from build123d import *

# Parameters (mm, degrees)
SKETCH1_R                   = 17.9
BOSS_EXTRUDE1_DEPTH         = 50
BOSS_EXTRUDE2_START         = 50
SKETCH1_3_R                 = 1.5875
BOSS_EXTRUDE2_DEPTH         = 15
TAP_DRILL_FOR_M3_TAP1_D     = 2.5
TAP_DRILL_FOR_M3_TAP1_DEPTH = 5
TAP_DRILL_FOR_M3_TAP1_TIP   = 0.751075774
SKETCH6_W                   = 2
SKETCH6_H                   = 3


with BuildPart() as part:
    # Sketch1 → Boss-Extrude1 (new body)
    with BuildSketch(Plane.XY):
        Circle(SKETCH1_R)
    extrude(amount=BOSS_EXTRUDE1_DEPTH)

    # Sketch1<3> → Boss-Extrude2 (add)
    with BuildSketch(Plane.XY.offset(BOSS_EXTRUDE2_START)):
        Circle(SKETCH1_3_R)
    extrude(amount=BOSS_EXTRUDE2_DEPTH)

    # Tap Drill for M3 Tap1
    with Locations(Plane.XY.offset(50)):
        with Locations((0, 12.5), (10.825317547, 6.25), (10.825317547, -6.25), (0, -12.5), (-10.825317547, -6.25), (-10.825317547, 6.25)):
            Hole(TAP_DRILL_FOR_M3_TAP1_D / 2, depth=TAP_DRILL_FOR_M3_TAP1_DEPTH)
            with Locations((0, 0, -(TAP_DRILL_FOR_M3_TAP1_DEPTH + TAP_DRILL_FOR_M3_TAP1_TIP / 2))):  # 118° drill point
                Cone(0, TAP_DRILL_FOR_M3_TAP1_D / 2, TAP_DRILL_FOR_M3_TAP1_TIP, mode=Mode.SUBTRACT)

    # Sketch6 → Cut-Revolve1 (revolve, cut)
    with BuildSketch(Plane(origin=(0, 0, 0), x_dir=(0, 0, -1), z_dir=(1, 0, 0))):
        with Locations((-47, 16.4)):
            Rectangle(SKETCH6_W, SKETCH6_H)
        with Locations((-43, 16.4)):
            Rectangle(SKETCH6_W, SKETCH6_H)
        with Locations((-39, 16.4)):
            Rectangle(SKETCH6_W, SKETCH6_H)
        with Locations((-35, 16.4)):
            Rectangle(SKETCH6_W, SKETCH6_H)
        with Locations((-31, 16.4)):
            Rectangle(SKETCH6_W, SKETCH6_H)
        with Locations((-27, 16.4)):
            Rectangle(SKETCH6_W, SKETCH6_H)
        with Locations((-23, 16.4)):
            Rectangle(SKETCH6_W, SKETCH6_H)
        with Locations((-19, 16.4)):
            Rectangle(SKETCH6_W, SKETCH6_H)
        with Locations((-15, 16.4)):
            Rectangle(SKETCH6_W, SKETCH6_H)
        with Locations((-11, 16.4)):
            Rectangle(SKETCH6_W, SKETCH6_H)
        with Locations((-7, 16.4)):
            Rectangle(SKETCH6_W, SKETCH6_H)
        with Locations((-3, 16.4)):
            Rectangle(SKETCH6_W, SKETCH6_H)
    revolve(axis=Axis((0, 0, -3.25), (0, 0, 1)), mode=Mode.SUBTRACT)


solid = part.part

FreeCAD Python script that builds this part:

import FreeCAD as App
import Part
import Sketcher

doc = App.newDocument("Part")
body = doc.addObject("PartDesign::Body", "Body")

# Sketch on XY plane
sketch1 = body.newObject("Sketcher::SketchObject", "Sketch")
sketch1.AttachmentSupport = (doc.getObject("XY_Plane"), [""])
sketch1.MapMode = "FlatFace"
sketch1.addGeometry(Part.Circle(App.Vector(0, 0, 0), App.Vector(0, 0, 1), 17.9), False)
sketch1.addConstraint(Sketcher.Constraint("Coincident", 0, 3, -1, 1))
sketch1.addConstraint(Sketcher.Constraint("Diameter", 0, 35.8))
pad1 = body.newObject("PartDesign::Pad", "Pad")
pad1.Profile = sketch1
pad1.Length = 50

# Sketch on XY plane
sketch2 = body.newObject("Sketcher::SketchObject", "Sketch001")
sketch2.AttachmentSupport = (doc.getObject("XY_Plane"), [""])
sketch2.MapMode = "FlatFace"
sketch2.AttachmentOffset = App.Placement(App.Vector(0, 0, 50), App.Rotation())
sketch2.addGeometry(Part.Circle(App.Vector(0, 0, 0), App.Vector(0, 0, 1), 1.5875), False)
sketch2.addConstraint(Sketcher.Constraint("Coincident", 0, 3, -1, 1))
sketch2.addConstraint(Sketcher.Constraint("Diameter", 0, 3.175))
pad2 = body.newObject("PartDesign::Pad", "Pad001")
pad2.Profile = sketch2
pad2.Length = 15

# Sketch on XY plane
sketch3 = body.newObject("Sketcher::SketchObject", "Sketch002")
sketch3.AttachmentSupport = (doc.getObject("XY_Plane"), [""])
sketch3.MapMode = "FlatFace"
sketch3.AttachmentOffset = App.Placement(App.Vector(0, 0, 50), App.Rotation())
sketch3.addGeometry(Part.Circle(App.Vector(0, 12.5, 0), App.Vector(0, 0, 1), 1.25), False)
sketch3.addGeometry(Part.Circle(App.Vector(10.825318, 6.25, 0), App.Vector(0, 0, 1), 1.25), False)
sketch3.addGeometry(Part.Circle(App.Vector(10.825318, -6.25, 0), App.Vector(0, 0, 1), 1.25), False)
sketch3.addGeometry(Part.Circle(App.Vector(0, -12.5, 0), App.Vector(0, 0, 1), 1.25), False)
sketch3.addGeometry(Part.Circle(App.Vector(-10.825318, -6.25, 0), App.Vector(0, 0, 1), 1.25), False)
sketch3.addGeometry(Part.Circle(App.Vector(-10.825318, 6.25, 0), App.Vector(0, 0, 1), 1.25), False)
sketch3.addConstraint(Sketcher.Constraint("Equal", 0, 1))
sketch3.addConstraint(Sketcher.Constraint("Equal", 1, 2))
sketch3.addConstraint(Sketcher.Constraint("Equal", 2, 3))
sketch3.addConstraint(Sketcher.Constraint("Equal", 3, 4))
sketch3.addConstraint(Sketcher.Constraint("Equal", 4, 5))
sketch3.addConstraint(Sketcher.Constraint("Symmetric", 0, 3, 3, 3, -1, 1))
sketch3.addConstraint(Sketcher.Constraint("Symmetric", 1, 3, 4, 3, -1, 1))
sketch3.addConstraint(Sketcher.Constraint("Symmetric", 2, 3, 5, 3, -1, 1))
sketch3.addConstraint(Sketcher.Constraint("Symmetric", 2, 3, 4, 3, -2))
sketch3.addConstraint(Sketcher.Constraint("PointOnObject", 0, 3, -2))
sketch3.addConstraint(Sketcher.Constraint("Diameter", 0, 2.5))
sketch3.addConstraint(Sketcher.Constraint("DistanceY", 3, 3, 0, 3, 25.0))
sketch3.addConstraint(Sketcher.Constraint("DistanceY", 2, 3, 1, 3, 12.5))
sketch3.addConstraint(Sketcher.Constraint("DistanceX", -1, 1, 1, 3, 10.825318))
doc.recompute()
hole = body.newObject("PartDesign::Hole", "Hole")
hole.Profile = sketch3
hole.ThreadType = "None"
hole.Diameter = 2.5
hole.DepthType = "Dimension"
hole.Depth = 5
hole.DrillPoint = "Angled"
hole.DrillPointAngle = 118

# Sketch on YZ plane
sketch4 = body.newObject("Sketcher::SketchObject", "Sketch003")
sketch4.AttachmentSupport = (doc.getObject("YZ_Plane"), [""])
sketch4.MapMode = "FlatFace"
sketch4.addGeometry(Part.LineSegment(App.Vector(17.9, 48, 0), App.Vector(14.9, 48, 0)), False)
sketch4.addGeometry(Part.LineSegment(App.Vector(14.9, 48, 0), App.Vector(14.9, 46, 0)), False)
sketch4.addGeometry(Part.LineSegment(App.Vector(14.9, 46, 0), App.Vector(17.9, 46, 0)), False)
sketch4.addGeometry(Part.LineSegment(App.Vector(17.9, 46, 0), App.Vector(17.9, 48, 0)), False)
sketch4.addGeometry(Part.LineSegment(App.Vector(17.9, 44, 0), App.Vector(14.9, 44, 0)), False)
sketch4.addGeometry(Part.LineSegment(App.Vector(14.9, 44, 0), App.Vector(14.9, 42, 0)), False)
sketch4.addGeometry(Part.LineSegment(App.Vector(14.9, 42, 0), App.Vector(17.9, 42, 0)), False)
sketch4.addGeometry(Part.LineSegment(App.Vector(17.9, 42, 0), App.Vector(17.9, 44, 0)), False)
sketch4.addGeometry(Part.LineSegment(App.Vector(17.9, 40, 0), App.Vector(14.9, 40, 0)), False)
sketch4.addGeometry(Part.LineSegment(App.Vector(14.9, 40, 0), App.Vector(14.9, 38, 0)), False)
sketch4.addGeometry(Part.LineSegment(App.Vector(14.9, 38, 0), App.Vector(17.9, 38, 0)), False)
sketch4.addGeometry(Part.LineSegment(App.Vector(17.9, 38, 0), App.Vector(17.9, 40, 0)), False)
sketch4.addGeometry(Part.LineSegment(App.Vector(17.9, 36, 0), App.Vector(14.9, 36, 0)), False)
sketch4.addGeometry(Part.LineSegment(App.Vector(14.9, 36, 0), App.Vector(14.9, 34, 0)), False)
sketch4.addGeometry(Part.LineSegment(App.Vector(14.9, 34, 0), App.Vector(17.9, 34, 0)), False)
sketch4.addGeometry(Part.LineSegment(App.Vector(17.9, 34, 0), App.Vector(17.9, 36, 0)), False)
sketch4.addGeometry(Part.LineSegment(App.Vector(17.9, 32, 0), App.Vector(14.9, 32, 0)), False)
sketch4.addGeometry(Part.LineSegment(App.Vector(14.9, 32, 0), App.Vector(14.9, 30, 0)), False)
sketch4.addGeometry(Part.LineSegment(App.Vector(14.9, 30, 0), App.Vector(17.9, 30, 0)), False)
sketch4.addGeometry(Part.LineSegment(App.Vector(17.9, 30, 0), App.Vector(17.9, 32, 0)), False)
sketch4.addGeometry(Part.LineSegment(App.Vector(17.9, 28, 0), App.Vector(14.9, 28, 0)), False)
sketch4.addGeometry(Part.LineSegment(App.Vector(14.9, 28, 0), App.Vector(14.9, 26, 0)), False)
sketch4.addGeometry(Part.LineSegment(App.Vector(14.9, 26, 0), App.Vector(17.9, 26, 0)), False)
sketch4.addGeometry(Part.LineSegment(App.Vector(17.9, 26, 0), App.Vector(17.9, 28, 0)), False)
sketch4.addGeometry(Part.LineSegment(App.Vector(17.9, 24, 0), App.Vector(14.9, 24, 0)), False)
sketch4.addGeometry(Part.LineSegment(App.Vector(14.9, 24, 0), App.Vector(14.9, 22, 0)), False)
sketch4.addGeometry(Part.LineSegment(App.Vector(14.9, 22, 0), App.Vector(17.9, 22, 0)), False)
sketch4.addGeometry(Part.LineSegment(App.Vector(17.9, 22, 0), App.Vector(17.9, 24, 0)), False)
sketch4.addGeometry(Part.LineSegment(App.Vector(17.9, 20, 0), App.Vector(14.9, 20, 0)), False)
sketch4.addGeometry(Part.LineSegment(App.Vector(14.9, 20, 0), App.Vector(14.9, 18, 0)), False)
sketch4.addGeometry(Part.LineSegment(App.Vector(14.9, 18, 0), App.Vector(17.9, 18, 0)), False)
sketch4.addGeometry(Part.LineSegment(App.Vector(17.9, 18, 0), App.Vector(17.9, 20, 0)), False)
sketch4.addGeometry(Part.LineSegment(App.Vector(17.9, 16, 0), App.Vector(14.9, 16, 0)), False)
sketch4.addGeometry(Part.LineSegment(App.Vector(14.9, 16, 0), App.Vector(14.9, 14, 0)), False)
sketch4.addGeometry(Part.LineSegment(App.Vector(14.9, 14, 0), App.Vector(17.9, 14, 0)), False)
sketch4.addGeometry(Part.LineSegment(App.Vector(17.9, 14, 0), App.Vector(17.9, 16, 0)), False)
sketch4.addGeometry(Part.LineSegment(App.Vector(17.9, 12, 0), App.Vector(14.9, 12, 0)), False)
sketch4.addGeometry(Part.LineSegment(App.Vector(14.9, 12, 0), App.Vector(14.9, 10, 0)), False)
sketch4.addGeometry(Part.LineSegment(App.Vector(14.9, 10, 0), App.Vector(17.9, 10, 0)), False)
sketch4.addGeometry(Part.LineSegment(App.Vector(17.9, 10, 0), App.Vector(17.9, 12, 0)), False)
sketch4.addGeometry(Part.LineSegment(App.Vector(17.9, 8, 0), App.Vector(14.9, 8, 0)), False)
sketch4.addGeometry(Part.LineSegment(App.Vector(14.9, 8, 0), App.Vector(14.9, 6, 0)), False)
sketch4.addGeometry(Part.LineSegment(App.Vector(14.9, 6, 0), App.Vector(17.9, 6, 0)), False)
sketch4.addGeometry(Part.LineSegment(App.Vector(17.9, 6, 0), App.Vector(17.9, 8, 0)), False)
sketch4.addGeometry(Part.LineSegment(App.Vector(17.9, 4, 0), App.Vector(14.9, 4, 0)), False)
sketch4.addGeometry(Part.LineSegment(App.Vector(14.9, 4, 0), App.Vector(14.9, 2, 0)), False)
sketch4.addGeometry(Part.LineSegment(App.Vector(14.9, 2, 0), App.Vector(17.9, 2, 0)), False)
sketch4.addGeometry(Part.LineSegment(App.Vector(17.9, 2, 0), App.Vector(17.9, 4, 0)), False)
sketch4.addConstraint(Sketcher.Constraint("Coincident", 0, 2, 1, 1))
sketch4.addConstraint(Sketcher.Constraint("Coincident", 1, 2, 2, 1))
sketch4.addConstraint(Sketcher.Constraint("Coincident", 2, 2, 3, 1))
sketch4.addConstraint(Sketcher.Constraint("Coincident", 3, 2, 0, 1))
sketch4.addConstraint(Sketcher.Constraint("Coincident", 4, 2, 5, 1))
sketch4.addConstraint(Sketcher.Constraint("Coincident", 5, 2, 6, 1))
sketch4.addConstraint(Sketcher.Constraint("Coincident", 6, 2, 7, 1))
sketch4.addConstraint(Sketcher.Constraint("Coincident", 7, 2, 4, 1))
sketch4.addConstraint(Sketcher.Constraint("Coincident", 8, 2, 9, 1))
sketch4.addConstraint(Sketcher.Constraint("Coincident", 9, 2, 10, 1))
sketch4.addConstraint(Sketcher.Constraint("Coincident", 10, 2, 11, 1))
sketch4.addConstraint(Sketcher.Constraint("Coincident", 11, 2, 8, 1))
sketch4.addConstraint(Sketcher.Constraint("Coincident", 12, 2, 13, 1))
sketch4.addConstraint(Sketcher.Constraint("Coincident", 13, 2, 14, 1))
sketch4.addConstraint(Sketcher.Constraint("Coincident", 14, 2, 15, 1))
sketch4.addConstraint(Sketcher.Constraint("Coincident", 15, 2, 12, 1))
sketch4.addConstraint(Sketcher.Constraint("Coincident", 16, 2, 17, 1))
sketch4.addConstraint(Sketcher.Constraint("Coincident", 17, 2, 18, 1))
sketch4.addConstraint(Sketcher.Constraint("Coincident", 18, 2, 19, 1))
sketch4.addConstraint(Sketcher.Constraint("Coincident", 19, 2, 16, 1))
sketch4.addConstraint(Sketcher.Constraint("Coincident", 20, 2, 21, 1))
sketch4.addConstraint(Sketcher.Constraint("Coincident", 21, 2, 22, 1))
sketch4.addConstraint(Sketcher.Constraint("Coincident", 22, 2, 23, 1))
sketch4.addConstraint(Sketcher.Constraint("Coincident", 23, 2, 20, 1))
sketch4.addConstraint(Sketcher.Constraint("Coincident", 24, 2, 25, 1))
sketch4.addConstraint(Sketcher.Constraint("Coincident", 25, 2, 26, 1))
sketch4.addConstraint(Sketcher.Constraint("Coincident", 26, 2, 27, 1))
sketch4.addConstraint(Sketcher.Constraint("Coincident", 27, 2, 24, 1))
sketch4.addConstraint(Sketcher.Constraint("Coincident", 28, 2, 29, 1))
sketch4.addConstraint(Sketcher.Constraint("Coincident", 29, 2, 30, 1))
sketch4.addConstraint(Sketcher.Constraint("Coincident", 30, 2, 31, 1))
sketch4.addConstraint(Sketcher.Constraint("Coincident", 31, 2, 28, 1))
sketch4.addConstraint(Sketcher.Constraint("Coincident", 32, 2, 33, 1))
sketch4.addConstraint(Sketcher.Constraint("Coincident", 33, 2, 34, 1))
sketch4.addConstraint(Sketcher.Constraint("Coincident", 34, 2, 35, 1))
sketch4.addConstraint(Sketcher.Constraint("Coincident", 35, 2, 32, 1))
sketch4.addConstraint(Sketcher.Constraint("Coincident", 36, 2, 37, 1))
sketch4.addConstraint(Sketcher.Constraint("Coincident", 37, 2, 38, 1))
sketch4.addConstraint(Sketcher.Constraint("Coincident", 38, 2, 39, 1))
sketch4.addConstraint(Sketcher.Constraint("Coincident", 39, 2, 36, 1))
sketch4.addConstraint(Sketcher.Constraint("Coincident", 40, 2, 41, 1))
sketch4.addConstraint(Sketcher.Constraint("Coincident", 41, 2, 42, 1))
sketch4.addConstraint(Sketcher.Constraint("Coincident", 42, 2, 43, 1))
sketch4.addConstraint(Sketcher.Constraint("Coincident", 43, 2, 40, 1))
sketch4.addConstraint(Sketcher.Constraint("Coincident", 44, 2, 45, 1))
sketch4.addConstraint(Sketcher.Constraint("Coincident", 45, 2, 46, 1))
sketch4.addConstraint(Sketcher.Constraint("Coincident", 46, 2, 47, 1))
sketch4.addConstraint(Sketcher.Constraint("Coincident", 47, 2, 44, 1))
sketch4.addConstraint(Sketcher.Constraint("Horizontal", 0))
sketch4.addConstraint(Sketcher.Constraint("Vertical", 1))
sketch4.addConstraint(Sketcher.Constraint("Horizontal", 2))
sketch4.addConstraint(Sketcher.Constraint("Vertical", 3))
sketch4.addConstraint(Sketcher.Constraint("Horizontal", 4))
sketch4.addConstraint(Sketcher.Constraint("Vertical", 5))
sketch4.addConstraint(Sketcher.Constraint("Horizontal", 6))
sketch4.addConstraint(Sketcher.Constraint("Vertical", 7))
sketch4.addConstraint(Sketcher.Constraint("Horizontal", 8))
sketch4.addConstraint(Sketcher.Constraint("Vertical", 9))
sketch4.addConstraint(Sketcher.Constraint("Horizontal", 10))
sketch4.addConstraint(Sketcher.Constraint("Vertical", 11))
sketch4.addConstraint(Sketcher.Constraint("Horizontal", 12))
sketch4.addConstraint(Sketcher.Constraint("Vertical", 13))
sketch4.addConstraint(Sketcher.Constraint("Horizontal", 14))
sketch4.addConstraint(Sketcher.Constraint("Vertical", 15))
sketch4.addConstraint(Sketcher.Constraint("Horizontal", 16))
sketch4.addConstraint(Sketcher.Constraint("Vertical", 17))
sketch4.addConstraint(Sketcher.Constraint("Horizontal", 18))
sketch4.addConstraint(Sketcher.Constraint("Vertical", 19))
sketch4.addConstraint(Sketcher.Constraint("Horizontal", 20))
sketch4.addConstraint(Sketcher.Constraint("Vertical", 21))
sketch4.addConstraint(Sketcher.Constraint("Horizontal", 22))
sketch4.addConstraint(Sketcher.Constraint("Vertical", 23))
sketch4.addConstraint(Sketcher.Constraint("Horizontal", 24))
sketch4.addConstraint(Sketcher.Constraint("Vertical", 25))
sketch4.addConstraint(Sketcher.Constraint("Horizontal", 26))
sketch4.addConstraint(Sketcher.Constraint("Vertical", 27))
sketch4.addConstraint(Sketcher.Constraint("Horizontal", 28))
sketch4.addConstraint(Sketcher.Constraint("Vertical", 29))
sketch4.addConstraint(Sketcher.Constraint("Horizontal", 30))
sketch4.addConstraint(Sketcher.Constraint("Vertical", 31))
sketch4.addConstraint(Sketcher.Constraint("Horizontal", 32))
sketch4.addConstraint(Sketcher.Constraint("Vertical", 33))
sketch4.addConstraint(Sketcher.Constraint("Horizontal", 34))
sketch4.addConstraint(Sketcher.Constraint("Vertical", 35))
sketch4.addConstraint(Sketcher.Constraint("Horizontal", 36))
sketch4.addConstraint(Sketcher.Constraint("Vertical", 37))
sketch4.addConstraint(Sketcher.Constraint("Horizontal", 38))
sketch4.addConstraint(Sketcher.Constraint("Vertical", 39))
sketch4.addConstraint(Sketcher.Constraint("Horizontal", 40))
sketch4.addConstraint(Sketcher.Constraint("Vertical", 41))
sketch4.addConstraint(Sketcher.Constraint("Horizontal", 42))
sketch4.addConstraint(Sketcher.Constraint("Vertical", 43))
sketch4.addConstraint(Sketcher.Constraint("Horizontal", 44))
sketch4.addConstraint(Sketcher.Constraint("Vertical", 45))
sketch4.addConstraint(Sketcher.Constraint("Horizontal", 46))
sketch4.addConstraint(Sketcher.Constraint("Vertical", 47))
sketch4.addConstraint(Sketcher.Constraint("Vertical", 1, 2, 4, 2))
sketch4.addConstraint(Sketcher.Constraint("Vertical", 3, 2, 6, 2))
sketch4.addConstraint(Sketcher.Constraint("Vertical", 5, 2, 8, 2))
sketch4.addConstraint(Sketcher.Constraint("Vertical", 7, 2, 10, 2))
sketch4.addConstraint(Sketcher.Constraint("Vertical", 9, 2, 12, 2))
sketch4.addConstraint(Sketcher.Constraint("Vertical", 11, 2, 14, 2))
sketch4.addConstraint(Sketcher.Constraint("Vertical", 13, 2, 16, 2))
sketch4.addConstraint(Sketcher.Constraint("Vertical", 15, 2, 18, 2))
sketch4.addConstraint(Sketcher.Constraint("Vertical", 17, 2, 20, 2))
sketch4.addConstraint(Sketcher.Constraint("Vertical", 19, 2, 22, 2))
sketch4.addConstraint(Sketcher.Constraint("Vertical", 21, 2, 24, 2))
sketch4.addConstraint(Sketcher.Constraint("Vertical", 23, 2, 26, 2))
sketch4.addConstraint(Sketcher.Constraint("Vertical", 25, 2, 28, 2))
sketch4.addConstraint(Sketcher.Constraint("Vertical", 27, 2, 30, 2))
sketch4.addConstraint(Sketcher.Constraint("Vertical", 29, 2, 32, 2))
sketch4.addConstraint(Sketcher.Constraint("Vertical", 31, 2, 34, 2))
sketch4.addConstraint(Sketcher.Constraint("Vertical", 33, 2, 36, 2))
sketch4.addConstraint(Sketcher.Constraint("Vertical", 35, 2, 38, 2))
sketch4.addConstraint(Sketcher.Constraint("Vertical", 37, 2, 40, 2))
sketch4.addConstraint(Sketcher.Constraint("Vertical", 39, 2, 42, 2))
sketch4.addConstraint(Sketcher.Constraint("Vertical", 41, 2, 44, 2))
sketch4.addConstraint(Sketcher.Constraint("Vertical", 43, 2, 46, 2))
sketch4.addConstraint(Sketcher.Constraint("Equal", 3, 5))
sketch4.addConstraint(Sketcher.Constraint("Equal", 7, 9))
sketch4.addConstraint(Sketcher.Constraint("Equal", 11, 13))
sketch4.addConstraint(Sketcher.Constraint("Equal", 15, 17))
sketch4.addConstraint(Sketcher.Constraint("Equal", 19, 21))
sketch4.addConstraint(Sketcher.Constraint("Equal", 23, 25))
sketch4.addConstraint(Sketcher.Constraint("Equal", 27, 29))
sketch4.addConstraint(Sketcher.Constraint("Equal", 31, 33))
sketch4.addConstraint(Sketcher.Constraint("Equal", 35, 37))
sketch4.addConstraint(Sketcher.Constraint("Equal", 39, 41))
sketch4.addConstraint(Sketcher.Constraint("Equal", 43, 45))
sketch4.addConstraint(Sketcher.Constraint("DistanceX", 0, 2, 0, 1, 3.0))
sketch4.addConstraint(Sketcher.Constraint("DistanceY", 1, 2, 1, 1, 2.0))
sketch4.addConstraint(Sketcher.Constraint("DistanceY", -1, 1, 0, 2, 48.0))
sketch4.addConstraint(Sketcher.Constraint("DistanceY", -1, 1, 4, 2, 44.0))
sketch4.addConstraint(Sketcher.Constraint("DistanceY", -1, 1, 8, 2, 40.0))
sketch4.addConstraint(Sketcher.Constraint("DistanceY", -1, 1, 12, 2, 36.0))
sketch4.addConstraint(Sketcher.Constraint("DistanceY", -1, 1, 16, 2, 32.0))
sketch4.addConstraint(Sketcher.Constraint("DistanceY", -1, 1, 20, 2, 28.0))
sketch4.addConstraint(Sketcher.Constraint("DistanceY", -1, 1, 24, 2, 24.0))
sketch4.addConstraint(Sketcher.Constraint("DistanceY", -1, 1, 28, 2, 20.0))
sketch4.addConstraint(Sketcher.Constraint("DistanceY", -1, 1, 32, 2, 16.0))
sketch4.addConstraint(Sketcher.Constraint("DistanceY", -1, 1, 36, 2, 12.0))
sketch4.addConstraint(Sketcher.Constraint("DistanceY", -1, 1, 40, 2, 8.0))
sketch4.addConstraint(Sketcher.Constraint("DistanceY", -1, 1, 44, 2, 4.0))
sketch4.addConstraint(Sketcher.Constraint("DistanceX", -1, 1, 0, 2, 14.9))
groove = body.newObject("PartDesign::Groove", "Groove")
groove.Profile = sketch4
groove.ReferenceAxis = (sketch4, ["V_Axis"])
groove.Angle = 360

doc.recompute()
